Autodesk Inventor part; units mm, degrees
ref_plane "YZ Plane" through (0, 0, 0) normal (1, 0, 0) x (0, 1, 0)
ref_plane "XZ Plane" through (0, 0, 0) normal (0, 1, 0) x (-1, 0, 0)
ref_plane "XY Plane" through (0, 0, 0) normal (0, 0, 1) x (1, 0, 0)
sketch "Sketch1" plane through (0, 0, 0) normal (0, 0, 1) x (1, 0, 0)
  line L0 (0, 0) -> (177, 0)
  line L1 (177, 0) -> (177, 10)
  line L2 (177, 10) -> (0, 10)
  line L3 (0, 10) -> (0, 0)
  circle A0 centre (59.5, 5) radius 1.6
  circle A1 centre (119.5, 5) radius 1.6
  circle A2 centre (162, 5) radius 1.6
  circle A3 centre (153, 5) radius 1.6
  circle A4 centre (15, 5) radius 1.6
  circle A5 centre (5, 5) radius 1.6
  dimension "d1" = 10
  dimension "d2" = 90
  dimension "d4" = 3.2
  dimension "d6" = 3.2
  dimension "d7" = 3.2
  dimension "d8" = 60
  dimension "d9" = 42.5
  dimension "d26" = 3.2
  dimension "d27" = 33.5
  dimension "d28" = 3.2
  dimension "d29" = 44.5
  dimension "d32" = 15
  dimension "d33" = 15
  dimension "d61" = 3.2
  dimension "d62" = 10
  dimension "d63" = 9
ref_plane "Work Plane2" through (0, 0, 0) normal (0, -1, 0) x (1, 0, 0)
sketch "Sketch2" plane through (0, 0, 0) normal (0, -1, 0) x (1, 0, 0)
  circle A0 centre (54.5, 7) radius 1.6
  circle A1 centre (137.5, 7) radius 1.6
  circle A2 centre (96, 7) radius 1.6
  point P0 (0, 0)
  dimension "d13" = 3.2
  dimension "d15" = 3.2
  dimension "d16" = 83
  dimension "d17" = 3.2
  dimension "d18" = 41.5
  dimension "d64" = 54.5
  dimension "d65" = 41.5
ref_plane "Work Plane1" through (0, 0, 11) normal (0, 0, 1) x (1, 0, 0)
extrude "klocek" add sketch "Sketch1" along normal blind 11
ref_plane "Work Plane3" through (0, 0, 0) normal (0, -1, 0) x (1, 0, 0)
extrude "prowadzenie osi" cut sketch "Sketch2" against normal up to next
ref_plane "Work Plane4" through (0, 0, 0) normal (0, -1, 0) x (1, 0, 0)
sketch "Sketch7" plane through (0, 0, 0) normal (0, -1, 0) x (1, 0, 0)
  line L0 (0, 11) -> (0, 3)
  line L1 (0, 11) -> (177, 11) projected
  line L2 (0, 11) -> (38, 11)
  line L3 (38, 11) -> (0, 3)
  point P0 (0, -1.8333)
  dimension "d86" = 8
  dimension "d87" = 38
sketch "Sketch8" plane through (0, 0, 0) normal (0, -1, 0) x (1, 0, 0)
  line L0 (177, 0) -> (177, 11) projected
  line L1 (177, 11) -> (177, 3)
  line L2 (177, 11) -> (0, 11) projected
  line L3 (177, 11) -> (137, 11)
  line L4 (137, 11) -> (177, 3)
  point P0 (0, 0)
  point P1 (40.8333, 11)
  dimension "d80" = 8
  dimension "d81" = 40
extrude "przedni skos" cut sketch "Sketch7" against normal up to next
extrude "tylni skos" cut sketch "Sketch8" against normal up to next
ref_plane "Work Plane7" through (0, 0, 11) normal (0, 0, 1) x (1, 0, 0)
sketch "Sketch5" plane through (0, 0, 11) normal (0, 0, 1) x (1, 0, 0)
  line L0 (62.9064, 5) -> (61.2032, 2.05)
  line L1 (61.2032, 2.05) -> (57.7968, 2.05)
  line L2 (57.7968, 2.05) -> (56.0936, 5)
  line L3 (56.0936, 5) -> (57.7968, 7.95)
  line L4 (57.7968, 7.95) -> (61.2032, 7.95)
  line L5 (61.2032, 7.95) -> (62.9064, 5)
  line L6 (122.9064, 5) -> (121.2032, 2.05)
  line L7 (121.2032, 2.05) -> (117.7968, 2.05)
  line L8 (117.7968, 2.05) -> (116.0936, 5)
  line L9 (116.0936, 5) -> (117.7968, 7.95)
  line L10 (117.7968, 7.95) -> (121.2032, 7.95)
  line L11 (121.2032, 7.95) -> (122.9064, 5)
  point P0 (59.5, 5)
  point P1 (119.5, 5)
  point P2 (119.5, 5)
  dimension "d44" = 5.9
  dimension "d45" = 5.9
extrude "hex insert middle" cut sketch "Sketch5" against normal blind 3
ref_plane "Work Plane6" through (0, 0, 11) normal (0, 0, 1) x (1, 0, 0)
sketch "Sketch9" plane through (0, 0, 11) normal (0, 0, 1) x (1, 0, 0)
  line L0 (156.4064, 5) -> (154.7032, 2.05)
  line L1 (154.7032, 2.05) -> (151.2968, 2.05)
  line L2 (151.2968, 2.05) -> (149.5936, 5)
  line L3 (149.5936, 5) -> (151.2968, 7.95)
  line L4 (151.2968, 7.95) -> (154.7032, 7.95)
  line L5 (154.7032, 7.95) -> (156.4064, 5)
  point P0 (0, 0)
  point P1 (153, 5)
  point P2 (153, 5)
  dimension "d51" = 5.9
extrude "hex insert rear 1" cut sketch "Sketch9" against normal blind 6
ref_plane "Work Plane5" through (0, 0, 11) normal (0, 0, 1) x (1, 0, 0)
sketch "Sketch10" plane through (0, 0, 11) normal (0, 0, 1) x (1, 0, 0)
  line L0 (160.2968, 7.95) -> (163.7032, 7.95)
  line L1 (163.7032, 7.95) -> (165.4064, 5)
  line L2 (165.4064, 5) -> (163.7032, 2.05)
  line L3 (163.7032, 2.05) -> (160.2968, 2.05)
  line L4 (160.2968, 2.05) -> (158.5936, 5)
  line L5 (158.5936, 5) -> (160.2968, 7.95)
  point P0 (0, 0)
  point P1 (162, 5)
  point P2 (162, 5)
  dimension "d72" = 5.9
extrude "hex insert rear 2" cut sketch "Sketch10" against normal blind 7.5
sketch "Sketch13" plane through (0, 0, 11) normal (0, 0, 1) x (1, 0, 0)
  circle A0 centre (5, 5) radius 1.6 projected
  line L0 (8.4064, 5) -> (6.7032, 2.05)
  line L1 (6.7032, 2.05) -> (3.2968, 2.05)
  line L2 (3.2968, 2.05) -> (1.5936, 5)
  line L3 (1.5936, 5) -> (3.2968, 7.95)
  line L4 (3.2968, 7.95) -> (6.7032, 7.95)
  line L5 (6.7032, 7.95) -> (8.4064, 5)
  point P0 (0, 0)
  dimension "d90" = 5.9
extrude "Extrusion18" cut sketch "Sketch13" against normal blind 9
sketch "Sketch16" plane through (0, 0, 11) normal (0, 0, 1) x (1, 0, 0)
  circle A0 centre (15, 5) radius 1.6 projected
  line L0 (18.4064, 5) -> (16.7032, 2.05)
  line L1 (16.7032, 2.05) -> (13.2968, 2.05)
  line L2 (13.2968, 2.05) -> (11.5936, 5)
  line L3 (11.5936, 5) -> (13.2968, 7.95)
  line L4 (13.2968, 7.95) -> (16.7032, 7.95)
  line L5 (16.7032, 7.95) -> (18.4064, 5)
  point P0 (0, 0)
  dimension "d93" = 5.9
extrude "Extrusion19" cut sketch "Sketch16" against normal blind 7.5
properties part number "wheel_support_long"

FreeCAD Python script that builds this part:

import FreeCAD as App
import Part
import Sketcher
Q = App.Units.Quantity

doc = App.newDocument("Part")
params = doc.addObject("Spreadsheet::Sheet", "Params")
for row, (alias, value) in enumerate([
    ("sketch1_diameter", "3.2 mm"),
    ("sketch1_height", "10 mm"),
    ("pad1_length", "11 mm"),
    ("sketch2_diameter", "3.2 mm"),
    ("sketch3_width", "38 mm"),
    ("sketch3_height", "8 mm"),
    ("sketch4_width", "40 mm"),
    ("sketch4_height", "8 mm"),
    ("pocket4_length", "3 mm"),
    ("pocket5_length", "6 mm"),
    ("pocket6_length", "7.5 mm"),
    ("sketch8_diameter", "3.2 mm"),
    ("pocket7_length", "9 mm"),
    ("sketch9_diameter", "3.2 mm"),
    ("pocket8_length", "7.5 mm"),
], start=1):
    params.set(f"A{row}", alias)
    params.set(f"B{row}", "=" + value)
    params.setAlias(f"B{row}", alias)

body = doc.addObject("PartDesign::Body", "Body")

# Sketch on XY plane
sketch1 = doc.addObject("Sketcher::SketchObject", "Sketch")
body.addObject(sketch1)
sketch1.AttachmentSupport = (doc.XY_Plane, [""])
sketch1.MapMode = "FlatFace"
sketch1.addGeometry([
    Part.LineSegment(App.Vector(0, 10, 0), App.Vector(0, 0, 0)),  # 0
    Part.LineSegment(App.Vector(0, 0, 0), App.Vector(177, 0, 0)),  # 1
    Part.LineSegment(App.Vector(177, 0, 0), App.Vector(177, 10, 0)),  # 2
    Part.LineSegment(App.Vector(177, 10, 0), App.Vector(0, 10, 0)),  # 3
    Part.Circle(App.Vector(5, 5, 0), App.Vector(0, 0, 1), 1.6),  # 4
    Part.Circle(App.Vector(15, 5, 0), App.Vector(0, 0, 1), 1.6),  # 5
    Part.Circle(App.Vector(59.5, 5, 0), App.Vector(0, 0, 1), 1.6),  # 6
    Part.Circle(App.Vector(119.5, 5, 0), App.Vector(0, 0, 1), 1.6),  # 7
    Part.Circle(App.Vector(153, 5, 0), App.Vector(0, 0, 1), 1.6),  # 8
    Part.Circle(App.Vector(162, 5, 0), App.Vector(0, 0, 1), 1.6),  # 9
], False)
sketch1.addConstraint([
    Sketcher.Constraint("Coincident", 0, 2, 1, 1),
    Sketcher.Constraint("Coincident", 1, 2, 2, 1),
    Sketcher.Constraint("Coincident", 2, 2, 3, 1),
    Sketcher.Constraint("Coincident", 3, 2, 0, 1),
    Sketcher.Constraint("Vertical", 0),
    Sketcher.Constraint("Horizontal", 1),
    Sketcher.Constraint("Vertical", 2),
    Sketcher.Constraint("Horizontal", 3),
    Sketcher.Constraint("Coincident", 0, 2, -1, 1),
    Sketcher.Constraint("Equal", 4, 5),
    Sketcher.Constraint("Equal", 5, 6),
    Sketcher.Constraint("Equal", 6, 7),
    Sketcher.Constraint("Equal", 7, 8),
    Sketcher.Constraint("Equal", 8, 9),
    Sketcher.Constraint("Horizontal", 4, 3, 5, 3),
    Sketcher.Constraint("Horizontal", 5, 3, 6, 3),
    Sketcher.Constraint("Horizontal", 6, 3, 7, 3),
    Sketcher.Constraint("Horizontal", 7, 3, 8, 3),
    Sketcher.Constraint("Horizontal", 8, 3, 9, 3),
    Sketcher.Constraint("Diameter", 4, 3.2),
    Sketcher.Constraint("DistanceY", 0, 2, 0, 1, 10.0),
    Sketcher.Constraint("DistanceX", -1, 1, 5, 3, 15.0),
    Sketcher.Constraint("DistanceX", 4, 3, 5, 3, 10.0),
    Sketcher.Constraint("DistanceX", 6, 3, 7, 3, 60.0),
    Sketcher.Constraint("DistanceX", 8, 3, 9, 3, 9.0),
    Sketcher.Constraint("DistanceX", 9, 3, 1, 2, 15.0),
    Sketcher.Constraint("DistanceX", 5, 3, 6, 3, 44.5),
    Sketcher.Constraint("DistanceX", 7, 3, 8, 3, 33.5),
    Sketcher.Constraint("DistanceY", -1, 1, 4, 3, 5.0),
])
sketch1.setExpression("Constraints[19]", "Params.sketch1_diameter")
sketch1.setExpression("Constraints[20]", "Params.sketch1_height")
pad1 = doc.addObject("PartDesign::Pad", "Pad")
body.addObject(pad1)
pad1.Profile = sketch1
pad1.setExpression("Length", "Params.pad1_length")

# Sketch on XZ plane
sketch2 = doc.addObject("Sketcher::SketchObject", "Sketch001")
body.addObject(sketch2)
sketch2.AttachmentSupport = (doc.XZ_Plane, [""])
sketch2.MapMode = "FlatFace"
sketch2.addGeometry([
    Part.Circle(App.Vector(54.5, 7, 0), App.Vector(0, 0, 1), 1.6),
    Part.Circle(App.Vector(137.5, 7, 0), App.Vector(0, 0, 1), 1.6),
    Part.Circle(App.Vector(96, 7, 0), App.Vector(0, 0, 1), 1.6),
], False)
sketch2.addConstraint([
    Sketcher.Constraint("Equal", 0, 1),
    Sketcher.Constraint("Equal", 1, 2),
    Sketcher.Constraint("Horizontal", 0, 3, 1, 3),
    Sketcher.Constraint("Horizontal", 1, 3, 2, 3),
    Sketcher.Constraint("Diameter", 0, 3.2),
    Sketcher.Constraint("DistanceX", 0, 3, 1, 3, 83.0),
    Sketcher.Constraint("DistanceX", -1, 1, 0, 3, 54.5),
    Sketcher.Constraint("DistanceX", 0, 3, 2, 3, 41.5),
    Sketcher.Constraint("DistanceY", -1, 1, 0, 3, 7.0),
])
sketch2.setExpression("Constraints[4]", "Params.sketch2_diameter")
pocket1 = doc.addObject("PartDesign::Pocket", "Pocket")
body.addObject(pocket1)
pocket1.Profile = sketch2
pocket1.Type = "UpToFirst"

# Sketch on XZ plane
sketch3 = doc.addObject("Sketcher::SketchObject", "Sketch002")
body.addObject(sketch3)
sketch3.AttachmentSupport = (doc.XZ_Plane, [""])
sketch3.MapMode = "FlatFace"
sketch3.addGeometry([
    Part.LineSegment(App.Vector(38, 11, 0), App.Vector(0, 11, 0)),
    Part.LineSegment(App.Vector(0, 11, 0), App.Vector(0, 3, 0)),
    Part.LineSegment(App.Vector(0, 3, 0), App.Vector(38, 11, 0)),
], False)
sketch3.addConstraint([
    Sketcher.Constraint("Coincident", 0, 2, 1, 1),
    Sketcher.Constraint("Coincident", 1, 2, 2, 1),
    Sketcher.Constraint("Coincident", 2, 2, 0, 1),
    Sketcher.Constraint("Horizontal", 0),
    Sketcher.Constraint("Vertical", 1),
    Sketcher.Constraint("PointOnObject", 0, 2, -2),
    Sketcher.Constraint("DistanceX", 0, 2, 0, 1, 38.0),
    Sketcher.Constraint("DistanceY", 1, 2, 1, 1, 8.0),
    Sketcher.Constraint("DistanceY", -1, 1, 0, 2, 11.0),
])
sketch3.setExpression("Constraints[6]", "Params.sketch3_width")
sketch3.setExpression("Constraints[7]", "Params.sketch3_height")
pocket2 = doc.addObject("PartDesign::Pocket", "Pocket001")
body.addObject(pocket2)
pocket2.Profile = sketch3
pocket2.Type = "UpToFirst"

# Sketch on XZ plane
sketch4 = doc.addObject("Sketcher::SketchObject", "Sketch003")
body.addObject(sketch4)
sketch4.AttachmentSupport = (doc.XZ_Plane, [""])
sketch4.MapMode = "FlatFace"
sketch4.addGeometry([
    Part.LineSegment(App.Vector(137, 11, 0), App.Vector(177, 3, 0)),
    Part.LineSegment(App.Vector(177, 3, 0), App.Vector(177, 11, 0)),
    Part.LineSegment(App.Vector(177, 11, 0), App.Vector(137, 11, 0)),
], False)
sketch4.addConstraint([
    Sketcher.Constraint("Coincident", 0, 2, 1, 1),
    Sketcher.Constraint("Coincident", 1, 2, 2, 1),
    Sketcher.Constraint("Coincident", 2, 2, 0, 1),
    Sketcher.Constraint("Vertical", 1),
    Sketcher.Constraint("Horizontal", 2),
    Sketcher.Constraint("DistanceX", 2, 2, 2, 1, 40.0),
    Sketcher.Constraint("DistanceY", 1, 1, 1, 2, 8.0),
    Sketcher.Constraint("DistanceX", -1, 1, 0, 2, 177.0),
    Sketcher.Constraint("DistanceY", -1, 1, 0, 2, 3.0),
])
sketch4.setExpression("Constraints[5]", "Params.sketch4_width")
sketch4.setExpression("Constraints[6]", "Params.sketch4_height")
pocket3 = doc.addObject("PartDesign::Pocket", "Pocket002")
body.addObject(pocket3)
pocket3.Profile = sketch4
pocket3.Type = "UpToFirst"

# Sketch on XY plane
sketch5 = doc.addObject("Sketcher::SketchObject", "Sketch004")
body.addObject(sketch5)
sketch5.AttachmentSupport = (doc.XY_Plane, [""])
sketch5.MapMode = "FlatFace"
sketch5.AttachmentOffset = App.Placement(App.Vector(0, 0, 11), App.Rotation())
sketch5.addGeometry([
    Part.LineSegment(App.Vector(61.2, 2, 0), App.Vector(62.9, 5, 0)),  # 0
    Part.LineSegment(App.Vector(62.9, 5, 0), App.Vector(61.2, 8, 0)),  # 1
    Part.LineSegment(App.Vector(61.2, 8, 0), App.Vector(57.8, 8, 0)),  # 2
    Part.LineSegment(App.Vector(57.8, 8, 0), App.Vector(56.1, 5, 0)),  # 3
    Part.LineSegment(App.Vector(56.1, 5, 0), App.Vector(57.8, 2, 0)),  # 4
    Part.LineSegment(App.Vector(57.8, 2, 0), App.Vector(61.2, 2, 0)),  # 5
    Part.LineSegment(App.Vector(121.2, 2, 0), App.Vector(122.9, 5, 0)),  # 6
    Part.LineSegment(App.Vector(122.9, 5, 0), App.Vector(121.2, 8, 0)),  # 7
    Part.LineSegment(App.Vector(121.2, 8, 0), App.Vector(117.8, 8, 0)),  # 8
    Part.LineSegment(App.Vector(117.8, 8, 0), App.Vector(116.1, 5, 0)),  # 9
    Part.LineSegment(App.Vector(116.1, 5, 0), App.Vector(117.8, 2, 0)),  # 10
    Part.LineSegment(App.Vector(117.8, 2, 0), App.Vector(121.2, 2, 0)),  # 11
], False)
sketch5.addConstraint([
    Sketcher.Constraint("Coincident", 0, 2, 1, 1),
    Sketcher.Constraint("Coincident", 1, 2, 2, 1),
    Sketcher.Constraint("Coincident", 2, 2, 3, 1),
    Sketcher.Constraint("Coincident", 3, 2, 4, 1),
    Sketcher.Constraint("Coincident", 4, 2, 5, 1),
    Sketcher.Constraint("Coincident", 5, 2, 0, 1),
    Sketcher.Constraint("Coincident", 6, 2, 7, 1),
    Sketcher.Constraint("Coincident", 7, 2, 8, 1),
    Sketcher.Constraint("Coincident", 8, 2, 9, 1),
    Sketcher.Constraint("Coincident", 9, 2, 10, 1),
    Sketcher.Constraint("Coincident", 10, 2, 11, 1),
    Sketcher.Constraint("Coincident", 11, 2, 6, 1),
    Sketcher.Constraint("Horizontal", 2),
    Sketcher.Constraint("Horizontal", 5),
    Sketcher.Constraint("Horizontal", 8),
    Sketcher.Constraint("Horizontal", 11),
    Sketcher.Constraint("Parallel", 0, 3),
    Sketcher.Constraint("Parallel", 1, 4),
    Sketcher.Constraint("Parallel", 3, 6),
    Sketcher.Constraint("Parallel", 4, 7),
    Sketcher.Constraint("Parallel", 6, 9),
    Sketcher.Constraint("Parallel", 7, 10),
    Sketcher.Constraint("Horizontal", 0, 2, 3, 2),
    Sketcher.Constraint("Horizontal", 3, 2, 6, 2),
    Sketcher.Constraint("Horizontal", 2, 2, 7, 2),
    Sketcher.Constraint("Horizontal", 6, 2, 9, 2),
    Sketcher.Constraint("Horizontal", 5, 2, 10, 2),
    Sketcher.Constraint("Vertical", 2, 2, 4, 2),
    Sketcher.Constraint("Vertical", 1, 2, 5, 2),
    Sketcher.Constraint("Equal", 5, 8),
    Sketcher.Constraint("DistanceY", 4, 2, 2, 2, 5.9),
    Sketcher.Constraint("Angle", 0, Q("59.9998 deg")),
    Sketcher.Constraint("DistanceY", -1, 1, 0, 2, 5.0),
    Sketcher.Constraint("DistanceX", 0, 2, 6, 2, 60.0),
    Sketcher.Constraint("DistanceX", 2, 2, 2, 1, 3.4064),
    Sketcher.Constraint("DistanceX", -1, 1, 0, 2, 62.9064),
])
pocket4 = doc.addObject("PartDesign::Pocket", "Pocket003")
body.addObject(pocket4)
pocket4.Profile = sketch5
pocket4.setExpression("Length", "Params.pocket4_length")

# Sketch on XY plane
sketch6 = doc.addObject("Sketcher::SketchObject", "Sketch005")
body.addObject(sketch6)
sketch6.AttachmentSupport = (doc.XY_Plane, [""])
sketch6.MapMode = "FlatFace"
sketch6.AttachmentOffset = App.Placement(App.Vector(0, 0, 11), App.Rotation())
sketch6.addGeometry([
    Part.LineSegment(App.Vector(154.7, 2, 0), App.Vector(156.4, 5, 0)),  # 0
    Part.LineSegment(App.Vector(156.4, 5, 0), App.Vector(154.7, 8, 0)),  # 1
    Part.LineSegment(App.Vector(154.7, 8, 0), App.Vector(151.3, 8, 0)),  # 2
    Part.LineSegment(App.Vector(151.3, 8, 0), App.Vector(149.6, 5, 0)),  # 3
    Part.LineSegment(App.Vector(149.6, 5, 0), App.Vector(151.3, 2, 0)),  # 4
    Part.LineSegment(App.Vector(151.3, 2, 0), App.Vector(154.7, 2, 0)),  # 5
], False)
sketch6.addConstraint([
    Sketcher.Constraint("Coincident", 0, 2, 1, 1),
    Sketcher.Constraint("Coincident", 1, 2, 2, 1),
    Sketcher.Constraint("Coincident", 2, 2, 3, 1),
    Sketcher.Constraint("Coincident", 3, 2, 4, 1),
    Sketcher.Constraint("Coincident", 4, 2, 5, 1),
    Sketcher.Constraint("Coincident", 5, 2, 0, 1),
    Sketcher.Constraint("Horizontal", 2),
    Sketcher.Constraint("Horizontal", 5),
    Sketcher.Constraint("Parallel", 0, 3),
    Sketcher.Constraint("Parallel", 1, 4),
    Sketcher.Constraint("Horizontal", 0, 2, 3, 2),
    Sketcher.Constraint("Vertical", 2, 2, 4, 2),
    Sketcher.Constraint("Vertical", 1, 2, 5, 2),
    Sketcher.Constraint("DistanceY", 4, 2, 2, 2, 5.9),
    Sketcher.Constraint("Angle", 0, Q("59.9998 deg")),
    Sketcher.Constraint("DistanceY", -1, 1, 0, 2, 5.0),
    Sketcher.Constraint("DistanceX", 2, 2, 2, 1, 3.4064),
    Sketcher.Constraint("DistanceX", -1, 1, 0, 2, 156.4064),
])
pocket5 = doc.addObject("PartDesign::Pocket", "Pocket004")
body.addObject(pocket5)
pocket5.Profile = sketch6
pocket5.setExpression("Length", "Params.pocket5_length")

# Sketch on XY plane
sketch7 = doc.addObject("Sketcher::SketchObject", "Sketch006")
body.addObject(sketch7)
sketch7.AttachmentSupport = (doc.XY_Plane, [""])
sketch7.MapMode = "FlatFace"
sketch7.AttachmentOffset = App.Placement(App.Vector(0, 0, 11), App.Rotation())
sketch7.addGeometry([
    Part.LineSegment(App.Vector(163.7, 8, 0), App.Vector(160.3, 8, 0)),  # 0
    Part.LineSegment(App.Vector(160.3, 8, 0), App.Vector(158.6, 5, 0)),  # 1
    Part.LineSegment(App.Vector(158.6, 5, 0), App.Vector(160.3, 2, 0)),  # 2
    Part.LineSegment(App.Vector(160.3, 2, 0), App.Vector(163.7, 2, 0)),  # 3
    Part.LineSegment(App.Vector(163.7, 2, 0), App.Vector(165.4, 5, 0)),  # 4
    Part.LineSegment(App.Vector(165.4, 5, 0), App.Vector(163.7, 8, 0)),  # 5
], False)
sketch7.addConstraint([
    Sketcher.Constraint("Coincident", 0, 2, 1, 1),
    Sketcher.Constraint("Coincident", 1, 2, 2, 1),
    Sketcher.Constraint("Coincident", 2, 2, 3, 1),
    Sketcher.Constraint("Coincident", 3, 2, 4, 1),
    Sketcher.Constraint("Coincident", 4, 2, 5, 1),
    Sketcher.Constraint("Coincident", 5, 2, 0, 1),
    Sketcher.Constraint("Horizontal", 0),
    Sketcher.Constraint("Horizontal", 3),
    Sketcher.Constraint("Parallel", 1, 4),
    Sketcher.Constraint("Parallel", 2, 5),
    Sketcher.Constraint("Horizontal", 1, 2, 4, 2),
    Sketcher.Constraint("Vertical", 0, 2, 2, 2),
    Sketcher.Constraint("Vertical", 3, 2, 5, 2),
    Sketcher.Constraint("DistanceY", 2, 2, 0, 2, 5.9),
    Sketcher.Constraint("Angle", 1, Q("-120.0002 deg")),
    Sketcher.Constraint("DistanceY", -1, 1, 1, 2, 5.0),
    Sketcher.Constraint("DistanceX", 0, 2, 0, 1, 3.4064),
    Sketcher.Constraint("DistanceX", -1, 1, 0, 2, 160.2968),
])
pocket6 = doc.addObject("PartDesign::Pocket", "Pocket005")
body.addObject(pocket6)
pocket6.Profile = sketch7
pocket6.setExpression("Length", "Params.pocket6_length")

# Sketch on XY plane
sketch8 = doc.addObject("Sketcher::SketchObject", "Sketch007")
body.addObject(sketch8)
sketch8.AttachmentSupport = (doc.XY_Plane, [""])
sketch8.MapMode = "FlatFace"
sketch8.AttachmentOffset = App.Placement(App.Vector(0, 0, 11), App.Rotation())
sketch8.addGeometry([
    Part.LineSegment(App.Vector(6.7, 2, 0), App.Vector(8.4, 5, 0)),  # 0
    Part.LineSegment(App.Vector(8.4, 5, 0), App.Vector(6.7, 8, 0)),  # 1
    Part.LineSegment(App.Vector(6.7, 8, 0), App.Vector(3.3, 8, 0)),  # 2
    Part.LineSegment(App.Vector(3.3, 8, 0), App.Vector(1.6, 5, 0)),  # 3
    Part.LineSegment(App.Vector(1.6, 5, 0), App.Vector(3.3, 2, 0)),  # 4
    Part.LineSegment(App.Vector(3.3, 2, 0), App.Vector(6.7, 2, 0)),  # 5
    Part.Circle(App.Vector(5, 5, 0), App.Vector(0, 0, 1), 1.6),  # 6
], False)
sketch8.addConstraint([
    Sketcher.Constraint("Coincident", 0, 2, 1, 1),
    Sketcher.Constraint("Coincident", 1, 2, 2, 1),
    Sketcher.Constraint("Coincident", 2, 2, 3, 1),
    Sketcher.Constraint("Coincident", 3, 2, 4, 1),
    Sketcher.Constraint("Coincident", 4, 2, 5, 1),
    Sketcher.Constraint("Coincident", 5, 2, 0, 1),
    Sketcher.Constraint("Horizontal", 2),
    Sketcher.Constraint("Horizontal", 5),
    Sketcher.Constraint("Parallel", 0, 3),
    Sketcher.Constraint("Parallel", 1, 4),
    Sketcher.Constraint("Horizontal", 6, 3, 0, 2),
    Sketcher.Constraint("Horizontal", 0, 2, 3, 2),
    Sketcher.Constraint("Vertical", 2, 2, 4, 2),
    Sketcher.Constraint("Vertical", 1, 2, 5, 2),
    Sketcher.Constraint("Diameter", 6, 3.2),
    Sketcher.Constraint("DistanceY", 4, 2, 2, 2, 5.9),
    Sketcher.Constraint("Angle", 0, Q("59.9998 deg")),
    Sketcher.Constraint("DistanceX", -1, 1, 6, 3, 5.0),
    Sketcher.Constraint("DistanceY", -1, 1, 6, 3, 5.0),
    Sketcher.Constraint("DistanceX", 2, 2, 2, 1, 3.4064),
    Sketcher.Constraint("DistanceX", -1, 1, 0, 2, 8.4064),
])
sketch8.setExpression("Constraints[14]", "Params.sketch8_diameter")
pocket7 = doc.addObject("PartDesign::Pocket", "Pocket006")
body.addObject(pocket7)
pocket7.Profile = sketch8
pocket7.setExpression("Length", "Params.pocket7_length")

# Sketch on XY plane
sketch9 = doc.addObject("Sketcher::SketchObject", "Sketch008")
body.addObject(sketch9)
sketch9.AttachmentSupport = (doc.XY_Plane, [""])
sketch9.MapMode = "FlatFace"
sketch9.AttachmentOffset = App.Placement(App.Vector(0, 0, 11), App.Rotation())
sketch9.addGeometry([
    Part.LineSegment(App.Vector(16.7, 2, 0), App.Vector(18.4, 5, 0)),  # 0
    Part.LineSegment(App.Vector(18.4, 5, 0), App.Vector(16.7, 8, 0)),  # 1
    Part.LineSegment(App.Vector(16.7, 8, 0), App.Vector(13.3, 8, 0)),  # 2
    Part.LineSegment(App.Vector(13.3, 8, 0), App.Vector(11.6, 5, 0)),  # 3
    Part.LineSegment(App.Vector(11.6, 5, 0), App.Vector(13.3, 2, 0)),  # 4
    Part.LineSegment(App.Vector(13.3, 2, 0), App.Vector(16.7, 2, 0)),  # 5
    Part.Circle(App.Vector(15, 5, 0), App.Vector(0, 0, 1), 1.6),  # 6
], False)
sketch9.addConstraint([
    Sketcher.Constraint("Coincident", 0, 2, 1, 1),
    Sketcher.Constraint("Coincident", 1, 2, 2, 1),
    Sketcher.Constraint("Coincident", 2, 2, 3, 1),
    Sketcher.Constraint("Coincident", 3, 2, 4, 1),
    Sketcher.Constraint("Coincident", 4, 2, 5, 1),
    Sketcher.Constraint("Coincident", 5, 2, 0, 1),
    Sketcher.Constraint("Horizontal", 2),
    Sketcher.Constraint("Horizontal", 5),
    Sketcher.Constraint("Parallel", 0, 3),
    Sketcher.Constraint("Parallel", 1, 4),
    Sketcher.Constraint("Horizontal", 6, 3, 0, 2),
    Sketcher.Constraint("Horizontal", 0, 2, 3, 2),
    Sketcher.Constraint("Vertical", 2, 2, 4, 2),
    Sketcher.Constraint("Vertical", 1, 2, 5, 2),
    Sketcher.Constraint("Diameter", 6, 3.2),
    Sketcher.Constraint("DistanceY", 4, 2, 2, 2, 5.9),
    Sketcher.Constraint("Angle", 0, Q("59.9998 deg")),
    Sketcher.Constraint("DistanceX", -1, 1, 6, 3, 15.0),
    Sketcher.Constraint("DistanceY", -1, 1, 6, 3, 5.0),
    Sketcher.Constraint("DistanceX", 2, 2, 2, 1, 3.4064),
    Sketcher.Constraint("DistanceX", -1, 1, 0, 2, 18.4064),
])
sketch9.setExpression("Constraints[14]", "Params.sketch9_diameter")
pocket8 = doc.addObject("PartDesign::Pocket", "Pocket007")
body.addObject(pocket8)
pocket8.Profile = sketch9
pocket8.setExpression("Length", "Params.pocket8_length")

doc.recompute()
